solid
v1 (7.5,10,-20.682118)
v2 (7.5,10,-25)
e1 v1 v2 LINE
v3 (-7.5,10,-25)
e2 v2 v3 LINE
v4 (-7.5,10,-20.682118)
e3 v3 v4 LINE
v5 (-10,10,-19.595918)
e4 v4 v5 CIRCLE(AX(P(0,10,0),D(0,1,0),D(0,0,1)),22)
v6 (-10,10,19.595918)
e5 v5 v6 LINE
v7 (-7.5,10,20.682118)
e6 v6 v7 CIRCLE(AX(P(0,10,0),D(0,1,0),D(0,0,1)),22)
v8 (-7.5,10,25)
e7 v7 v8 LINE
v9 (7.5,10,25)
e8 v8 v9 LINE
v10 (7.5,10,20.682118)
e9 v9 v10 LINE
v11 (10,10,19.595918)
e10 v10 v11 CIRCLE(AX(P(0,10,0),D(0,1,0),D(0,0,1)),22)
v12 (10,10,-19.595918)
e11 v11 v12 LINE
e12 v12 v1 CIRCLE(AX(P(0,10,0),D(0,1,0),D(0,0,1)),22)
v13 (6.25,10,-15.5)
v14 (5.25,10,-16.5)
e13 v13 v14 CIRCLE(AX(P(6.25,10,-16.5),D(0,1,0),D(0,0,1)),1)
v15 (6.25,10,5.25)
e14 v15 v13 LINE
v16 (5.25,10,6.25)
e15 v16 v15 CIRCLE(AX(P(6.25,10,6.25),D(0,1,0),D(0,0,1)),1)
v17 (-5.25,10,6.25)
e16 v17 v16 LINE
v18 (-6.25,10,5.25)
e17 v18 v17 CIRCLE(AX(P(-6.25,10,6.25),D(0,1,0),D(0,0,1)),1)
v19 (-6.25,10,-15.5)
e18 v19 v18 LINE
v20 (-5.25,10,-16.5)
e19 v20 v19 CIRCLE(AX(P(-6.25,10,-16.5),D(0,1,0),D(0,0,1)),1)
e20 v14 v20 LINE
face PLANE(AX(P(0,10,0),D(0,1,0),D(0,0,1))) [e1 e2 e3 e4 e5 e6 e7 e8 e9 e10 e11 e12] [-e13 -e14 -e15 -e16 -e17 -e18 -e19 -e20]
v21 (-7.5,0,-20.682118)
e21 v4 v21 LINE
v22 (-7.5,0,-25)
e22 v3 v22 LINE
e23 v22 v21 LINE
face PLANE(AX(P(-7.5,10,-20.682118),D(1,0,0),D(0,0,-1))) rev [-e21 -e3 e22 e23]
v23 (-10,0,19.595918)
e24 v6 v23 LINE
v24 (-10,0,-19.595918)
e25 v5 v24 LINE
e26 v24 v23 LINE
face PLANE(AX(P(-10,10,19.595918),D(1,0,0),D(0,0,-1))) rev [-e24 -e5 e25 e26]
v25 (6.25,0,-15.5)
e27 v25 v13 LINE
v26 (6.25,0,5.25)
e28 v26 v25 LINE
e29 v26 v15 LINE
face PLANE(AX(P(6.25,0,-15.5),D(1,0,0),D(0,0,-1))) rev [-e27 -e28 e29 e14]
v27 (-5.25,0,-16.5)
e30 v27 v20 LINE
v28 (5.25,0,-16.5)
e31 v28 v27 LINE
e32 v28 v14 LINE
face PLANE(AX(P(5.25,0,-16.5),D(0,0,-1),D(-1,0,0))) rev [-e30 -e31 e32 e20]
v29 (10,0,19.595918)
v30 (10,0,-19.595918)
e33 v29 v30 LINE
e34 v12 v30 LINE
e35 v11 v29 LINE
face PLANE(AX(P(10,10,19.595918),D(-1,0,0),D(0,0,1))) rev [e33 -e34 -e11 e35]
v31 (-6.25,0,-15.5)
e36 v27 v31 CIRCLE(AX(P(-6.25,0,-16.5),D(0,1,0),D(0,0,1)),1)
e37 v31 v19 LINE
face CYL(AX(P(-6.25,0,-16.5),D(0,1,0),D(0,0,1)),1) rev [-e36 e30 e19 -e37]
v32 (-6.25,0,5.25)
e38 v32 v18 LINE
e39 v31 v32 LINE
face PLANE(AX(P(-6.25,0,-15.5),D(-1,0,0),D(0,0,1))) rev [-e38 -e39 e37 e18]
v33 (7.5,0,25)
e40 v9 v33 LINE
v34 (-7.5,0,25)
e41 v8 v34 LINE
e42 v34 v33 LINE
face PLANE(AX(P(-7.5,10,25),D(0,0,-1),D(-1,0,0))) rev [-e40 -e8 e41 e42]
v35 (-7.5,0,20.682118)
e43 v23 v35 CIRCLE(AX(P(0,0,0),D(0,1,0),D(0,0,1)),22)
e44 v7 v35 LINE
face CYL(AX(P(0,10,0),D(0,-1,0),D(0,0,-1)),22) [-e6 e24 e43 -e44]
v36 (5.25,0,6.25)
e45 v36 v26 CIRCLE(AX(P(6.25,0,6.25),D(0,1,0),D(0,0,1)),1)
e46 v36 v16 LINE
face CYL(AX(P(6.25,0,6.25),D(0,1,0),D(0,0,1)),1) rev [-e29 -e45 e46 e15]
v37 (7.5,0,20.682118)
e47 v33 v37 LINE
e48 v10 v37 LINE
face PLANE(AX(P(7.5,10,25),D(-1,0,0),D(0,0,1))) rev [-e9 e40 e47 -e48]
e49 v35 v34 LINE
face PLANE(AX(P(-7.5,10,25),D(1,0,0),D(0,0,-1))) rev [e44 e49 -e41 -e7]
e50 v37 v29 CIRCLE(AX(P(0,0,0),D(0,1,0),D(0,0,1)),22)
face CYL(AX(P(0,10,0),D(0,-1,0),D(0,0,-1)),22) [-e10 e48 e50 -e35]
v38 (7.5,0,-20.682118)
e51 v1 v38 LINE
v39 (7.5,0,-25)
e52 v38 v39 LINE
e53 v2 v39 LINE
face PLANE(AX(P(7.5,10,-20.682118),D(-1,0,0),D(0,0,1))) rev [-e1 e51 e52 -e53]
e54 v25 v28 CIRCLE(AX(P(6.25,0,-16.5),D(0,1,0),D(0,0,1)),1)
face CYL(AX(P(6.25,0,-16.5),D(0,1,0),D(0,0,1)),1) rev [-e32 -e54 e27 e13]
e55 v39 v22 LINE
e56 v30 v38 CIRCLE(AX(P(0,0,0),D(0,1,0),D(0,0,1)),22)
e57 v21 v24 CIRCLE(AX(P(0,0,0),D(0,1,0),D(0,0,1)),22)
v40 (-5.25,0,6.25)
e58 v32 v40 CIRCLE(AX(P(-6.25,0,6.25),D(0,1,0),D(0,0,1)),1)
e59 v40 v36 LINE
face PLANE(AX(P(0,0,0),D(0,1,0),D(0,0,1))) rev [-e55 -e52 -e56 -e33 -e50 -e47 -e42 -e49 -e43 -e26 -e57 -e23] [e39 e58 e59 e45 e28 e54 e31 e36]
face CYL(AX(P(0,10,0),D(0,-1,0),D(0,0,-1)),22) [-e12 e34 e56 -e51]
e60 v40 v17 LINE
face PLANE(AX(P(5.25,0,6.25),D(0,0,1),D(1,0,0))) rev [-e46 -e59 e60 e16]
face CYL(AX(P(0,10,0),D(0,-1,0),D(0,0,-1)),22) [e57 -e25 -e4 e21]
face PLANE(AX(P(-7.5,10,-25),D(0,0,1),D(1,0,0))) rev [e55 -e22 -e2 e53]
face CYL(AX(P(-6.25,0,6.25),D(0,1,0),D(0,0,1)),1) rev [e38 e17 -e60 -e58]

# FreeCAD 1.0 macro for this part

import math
import FreeCAD as App
import Part
import Sketcher
Q = App.Units.Quantity

doc = App.newDocument("Part")
body = doc.addObject("PartDesign::Body", "Body")

sketch1 = body.newObject("Sketcher::SketchObject", "Sketch")
sketch1.AttachmentSupport = (doc.getObject("XZ_Plane"), [""])
sketch1.MapMode = "FlatFace"
sketch1.addGeometry([
    Part.LineSegment(App.Vector(-7.5, -25, 0), App.Vector(-7.5, -20.7, 0)),
    Part.ArcOfCircle(Part.Circle(App.Vector(0, 0, 0), App.Vector(0, 0, 1), 22), math.radians(-117.04), math.radians(-109.93)),
    Part.LineSegment(App.Vector(-10, -19.6, 0), App.Vector(-10, 19.6, 0)),
    Part.ArcOfCircle(Part.Circle(App.Vector(0, 0, 0), App.Vector(0, 0, 1), 22), math.radians(109.93), math.radians(117.04)),
    Part.LineSegment(App.Vector(-7.5, 20.7, 0), App.Vector(-7.5, 25, 0)),
    Part.LineSegment(App.Vector(-7.5, 25, 0), App.Vector(7.5, 25, 0)),
    Part.LineSegment(App.Vector(7.5, 25, 0), App.Vector(7.5, 20.7, 0)),
    Part.ArcOfCircle(Part.Circle(App.Vector(0, 0, 0), App.Vector(0, 0, 1), 22), math.radians(62.96), math.radians(70.07)),
    Part.LineSegment(App.Vector(10, 19.6, 0), App.Vector(10, -19.6, 0)),
    Part.ArcOfCircle(Part.Circle(App.Vector(0, 0, 0), App.Vector(0, 0, 1), 22), math.radians(-70.07), math.radians(-62.96)),
    Part.LineSegment(App.Vector(7.5, -20.7, 0), App.Vector(7.5, -25, 0)),
    Part.LineSegment(App.Vector(7.5, -25, 0), App.Vector(-7.5, -25, 0)),
], False)
sketch1.addConstraint([
    Sketcher.Constraint("Coincident", 0, 2, 1, 2),
    Sketcher.Constraint("Coincident", 1, 1, 2, 1),
    Sketcher.Constraint("Coincident", 2, 2, 3, 2),
    Sketcher.Constraint("Coincident", 3, 1, 4, 1),
    Sketcher.Constraint("Coincident", 4, 2, 5, 1),
    Sketcher.Constraint("Coincident", 5, 2, 6, 1),
    Sketcher.Constraint("Coincident", 6, 2, 7, 2),
    Sketcher.Constraint("Coincident", 7, 1, 8, 1),
    Sketcher.Constraint("Coincident", 8, 2, 9, 2),
    Sketcher.Constraint("Coincident", 9, 1, 10, 1),
    Sketcher.Constraint("Coincident", 10, 2, 11, 1),
    Sketcher.Constraint("Coincident", 11, 2, 0, 1),
    Sketcher.Constraint("Vertical", 0),
    Sketcher.Constraint("Vertical", 2),
    Sketcher.Constraint("Vertical", 4),
    Sketcher.Constraint("Horizontal", 5),
    Sketcher.Constraint("Vertical", 6),
    Sketcher.Constraint("Vertical", 8),
    Sketcher.Constraint("Vertical", 10),
    Sketcher.Constraint("Horizontal", 11),
    Sketcher.Constraint("Coincident", 1, 3, -1, 1),
    Sketcher.Constraint("Coincident", 3, 3, -1, 1),
    Sketcher.Constraint("Coincident", 7, 3, -1, 1),
    Sketcher.Constraint("Coincident", 9, 3, -1, 1),
    Sketcher.Constraint("Equal", 1, 3),
    Sketcher.Constraint("Equal", 3, 7),
    Sketcher.Constraint("Equal", 7, 9),
    Sketcher.Constraint("Symmetric", 4, 2, 10, 2, -1, 1),
    Sketcher.Constraint("Horizontal", 3, 1, 6, 2),
    Sketcher.Constraint("Horizontal", 2, 2, 7, 1),
    Sketcher.Constraint("Horizontal", 0, 2, 9, 1),
    Sketcher.Constraint("Radius", 1, Q("22 mm")),
    Sketcher.Constraint("DistanceX", 5, 1, 5, 2, Q("15 mm")),
    Sketcher.Constraint("DistanceX", 1, 1, -1, 1, Q("10 mm")),
    Sketcher.Constraint("DistanceY", -1, 1, 4, 2, Q("25 mm")),
])
pad1 = body.newObject("PartDesign::Pad", "Pad")
pad1.Profile = sketch1
pad1.Length = 10
pad1.Reversed = True

sketch2 = body.newObject("Sketcher::SketchObject", "Sketch001")
sketch2.AttachmentSupport = (doc.getObject("XZ_Plane"), [""])
sketch2.MapMode = "FlatFace"
sketch2.AttachmentOffset = App.Placement(App.Vector(0, 0, -10), App.Rotation())
sketch2.addGeometry([
    Part.LineSegment(App.Vector(5.2, -16.5, 0), App.Vector(-5.2, -16.5, 0)),
    Part.ArcOfCircle(Part.Circle(App.Vector(-6.2, -16.5, 0), App.Vector(0, 0, 1), 1), math.radians(90), math.radians(360)),
    Part.LineSegment(App.Vector(-6.2, -15.5, 0), App.Vector(-6.2, 5.2, 0)),
    Part.ArcOfCircle(Part.Circle(App.Vector(-6.2, 6.2, 0), App.Vector(0, 0, 1), 1), math.radians(0), math.radians(270)),
    Part.LineSegment(App.Vector(-5.2, 6.2, 0), App.Vector(5.2, 6.2, 0)),
    Part.ArcOfCircle(Part.Circle(App.Vector(6.2, 6.2, 0), App.Vector(0, 0, 1), 1), math.radians(-90), math.radians(180)),
    Part.LineSegment(App.Vector(6.2, 5.2, 0), App.Vector(6.2, -15.5, 0)),
    Part.ArcOfCircle(Part.Circle(App.Vector(6.2, -16.5, 0), App.Vector(0, 0, 1), 1), math.radians(180), math.radians(450)),
], False)
sketch2.addConstraint([
    Sketcher.Constraint("Coincident", 0, 2, 1, 2),
    Sketcher.Constraint("Coincident", 1, 1, 2, 1),
    Sketcher.Constraint("Coincident", 2, 2, 3, 2),
    Sketcher.Constraint("Coincident", 3, 1, 4, 1),
    Sketcher.Constraint("Coincident", 4, 2, 5, 2),
    Sketcher.Constraint("Coincident", 5, 1, 6, 1),
    Sketcher.Constraint("Coincident", 6, 2, 7, 2),
    Sketcher.Constraint("Coincident", 7, 1, 0, 1),
    Sketcher.Constraint("Horizontal", 0),
    Sketcher.Constraint("Vertical", 2),
    Sketcher.Constraint("Horizontal", 4),
    Sketcher.Constraint("Vertical", 6),
    Sketcher.Constraint("Equal", 1, 3),
    Sketcher.Constraint("Equal", 3, 5),
    Sketcher.Constraint("Equal", 5, 7),
    Sketcher.Constraint("Symmetric", 3, 3, 5, 3, -2),
    Sketcher.Constraint("Symmetric", 1, 3, 7, 3, -2),
    Sketcher.Constraint("Horizontal", 7, 3, 0, 2),
    Sketcher.Constraint("Horizontal", 5, 3, 3, 1),
    Sketcher.Constraint("Vertical", 1, 3, 3, 3),
    Sketcher.Constraint("Vertical", 3, 3, 1, 1),
    Sketcher.Constraint("Vertical", 7, 3, 5, 1),
    Sketcher.Constraint("Radius", 1, Q("1 mm")),
    Sketcher.Constraint("DistanceX", 0, 2, 0, 1, Q("10.5 mm")),
    Sketcher.Constraint("DistanceY", 2, 1, 2, 2, Q("20.75 mm")),
    Sketcher.Constraint("DistanceY", 1, 3, -1, 1, Q("16.5 mm")),
])
pocket1 = body.newObject("PartDesign::Pocket", "Pocket")
pocket1.Profile = sketch2
pocket1.Type = "ThroughAll"
pocket1.Reversed = True

doc.recompute()
